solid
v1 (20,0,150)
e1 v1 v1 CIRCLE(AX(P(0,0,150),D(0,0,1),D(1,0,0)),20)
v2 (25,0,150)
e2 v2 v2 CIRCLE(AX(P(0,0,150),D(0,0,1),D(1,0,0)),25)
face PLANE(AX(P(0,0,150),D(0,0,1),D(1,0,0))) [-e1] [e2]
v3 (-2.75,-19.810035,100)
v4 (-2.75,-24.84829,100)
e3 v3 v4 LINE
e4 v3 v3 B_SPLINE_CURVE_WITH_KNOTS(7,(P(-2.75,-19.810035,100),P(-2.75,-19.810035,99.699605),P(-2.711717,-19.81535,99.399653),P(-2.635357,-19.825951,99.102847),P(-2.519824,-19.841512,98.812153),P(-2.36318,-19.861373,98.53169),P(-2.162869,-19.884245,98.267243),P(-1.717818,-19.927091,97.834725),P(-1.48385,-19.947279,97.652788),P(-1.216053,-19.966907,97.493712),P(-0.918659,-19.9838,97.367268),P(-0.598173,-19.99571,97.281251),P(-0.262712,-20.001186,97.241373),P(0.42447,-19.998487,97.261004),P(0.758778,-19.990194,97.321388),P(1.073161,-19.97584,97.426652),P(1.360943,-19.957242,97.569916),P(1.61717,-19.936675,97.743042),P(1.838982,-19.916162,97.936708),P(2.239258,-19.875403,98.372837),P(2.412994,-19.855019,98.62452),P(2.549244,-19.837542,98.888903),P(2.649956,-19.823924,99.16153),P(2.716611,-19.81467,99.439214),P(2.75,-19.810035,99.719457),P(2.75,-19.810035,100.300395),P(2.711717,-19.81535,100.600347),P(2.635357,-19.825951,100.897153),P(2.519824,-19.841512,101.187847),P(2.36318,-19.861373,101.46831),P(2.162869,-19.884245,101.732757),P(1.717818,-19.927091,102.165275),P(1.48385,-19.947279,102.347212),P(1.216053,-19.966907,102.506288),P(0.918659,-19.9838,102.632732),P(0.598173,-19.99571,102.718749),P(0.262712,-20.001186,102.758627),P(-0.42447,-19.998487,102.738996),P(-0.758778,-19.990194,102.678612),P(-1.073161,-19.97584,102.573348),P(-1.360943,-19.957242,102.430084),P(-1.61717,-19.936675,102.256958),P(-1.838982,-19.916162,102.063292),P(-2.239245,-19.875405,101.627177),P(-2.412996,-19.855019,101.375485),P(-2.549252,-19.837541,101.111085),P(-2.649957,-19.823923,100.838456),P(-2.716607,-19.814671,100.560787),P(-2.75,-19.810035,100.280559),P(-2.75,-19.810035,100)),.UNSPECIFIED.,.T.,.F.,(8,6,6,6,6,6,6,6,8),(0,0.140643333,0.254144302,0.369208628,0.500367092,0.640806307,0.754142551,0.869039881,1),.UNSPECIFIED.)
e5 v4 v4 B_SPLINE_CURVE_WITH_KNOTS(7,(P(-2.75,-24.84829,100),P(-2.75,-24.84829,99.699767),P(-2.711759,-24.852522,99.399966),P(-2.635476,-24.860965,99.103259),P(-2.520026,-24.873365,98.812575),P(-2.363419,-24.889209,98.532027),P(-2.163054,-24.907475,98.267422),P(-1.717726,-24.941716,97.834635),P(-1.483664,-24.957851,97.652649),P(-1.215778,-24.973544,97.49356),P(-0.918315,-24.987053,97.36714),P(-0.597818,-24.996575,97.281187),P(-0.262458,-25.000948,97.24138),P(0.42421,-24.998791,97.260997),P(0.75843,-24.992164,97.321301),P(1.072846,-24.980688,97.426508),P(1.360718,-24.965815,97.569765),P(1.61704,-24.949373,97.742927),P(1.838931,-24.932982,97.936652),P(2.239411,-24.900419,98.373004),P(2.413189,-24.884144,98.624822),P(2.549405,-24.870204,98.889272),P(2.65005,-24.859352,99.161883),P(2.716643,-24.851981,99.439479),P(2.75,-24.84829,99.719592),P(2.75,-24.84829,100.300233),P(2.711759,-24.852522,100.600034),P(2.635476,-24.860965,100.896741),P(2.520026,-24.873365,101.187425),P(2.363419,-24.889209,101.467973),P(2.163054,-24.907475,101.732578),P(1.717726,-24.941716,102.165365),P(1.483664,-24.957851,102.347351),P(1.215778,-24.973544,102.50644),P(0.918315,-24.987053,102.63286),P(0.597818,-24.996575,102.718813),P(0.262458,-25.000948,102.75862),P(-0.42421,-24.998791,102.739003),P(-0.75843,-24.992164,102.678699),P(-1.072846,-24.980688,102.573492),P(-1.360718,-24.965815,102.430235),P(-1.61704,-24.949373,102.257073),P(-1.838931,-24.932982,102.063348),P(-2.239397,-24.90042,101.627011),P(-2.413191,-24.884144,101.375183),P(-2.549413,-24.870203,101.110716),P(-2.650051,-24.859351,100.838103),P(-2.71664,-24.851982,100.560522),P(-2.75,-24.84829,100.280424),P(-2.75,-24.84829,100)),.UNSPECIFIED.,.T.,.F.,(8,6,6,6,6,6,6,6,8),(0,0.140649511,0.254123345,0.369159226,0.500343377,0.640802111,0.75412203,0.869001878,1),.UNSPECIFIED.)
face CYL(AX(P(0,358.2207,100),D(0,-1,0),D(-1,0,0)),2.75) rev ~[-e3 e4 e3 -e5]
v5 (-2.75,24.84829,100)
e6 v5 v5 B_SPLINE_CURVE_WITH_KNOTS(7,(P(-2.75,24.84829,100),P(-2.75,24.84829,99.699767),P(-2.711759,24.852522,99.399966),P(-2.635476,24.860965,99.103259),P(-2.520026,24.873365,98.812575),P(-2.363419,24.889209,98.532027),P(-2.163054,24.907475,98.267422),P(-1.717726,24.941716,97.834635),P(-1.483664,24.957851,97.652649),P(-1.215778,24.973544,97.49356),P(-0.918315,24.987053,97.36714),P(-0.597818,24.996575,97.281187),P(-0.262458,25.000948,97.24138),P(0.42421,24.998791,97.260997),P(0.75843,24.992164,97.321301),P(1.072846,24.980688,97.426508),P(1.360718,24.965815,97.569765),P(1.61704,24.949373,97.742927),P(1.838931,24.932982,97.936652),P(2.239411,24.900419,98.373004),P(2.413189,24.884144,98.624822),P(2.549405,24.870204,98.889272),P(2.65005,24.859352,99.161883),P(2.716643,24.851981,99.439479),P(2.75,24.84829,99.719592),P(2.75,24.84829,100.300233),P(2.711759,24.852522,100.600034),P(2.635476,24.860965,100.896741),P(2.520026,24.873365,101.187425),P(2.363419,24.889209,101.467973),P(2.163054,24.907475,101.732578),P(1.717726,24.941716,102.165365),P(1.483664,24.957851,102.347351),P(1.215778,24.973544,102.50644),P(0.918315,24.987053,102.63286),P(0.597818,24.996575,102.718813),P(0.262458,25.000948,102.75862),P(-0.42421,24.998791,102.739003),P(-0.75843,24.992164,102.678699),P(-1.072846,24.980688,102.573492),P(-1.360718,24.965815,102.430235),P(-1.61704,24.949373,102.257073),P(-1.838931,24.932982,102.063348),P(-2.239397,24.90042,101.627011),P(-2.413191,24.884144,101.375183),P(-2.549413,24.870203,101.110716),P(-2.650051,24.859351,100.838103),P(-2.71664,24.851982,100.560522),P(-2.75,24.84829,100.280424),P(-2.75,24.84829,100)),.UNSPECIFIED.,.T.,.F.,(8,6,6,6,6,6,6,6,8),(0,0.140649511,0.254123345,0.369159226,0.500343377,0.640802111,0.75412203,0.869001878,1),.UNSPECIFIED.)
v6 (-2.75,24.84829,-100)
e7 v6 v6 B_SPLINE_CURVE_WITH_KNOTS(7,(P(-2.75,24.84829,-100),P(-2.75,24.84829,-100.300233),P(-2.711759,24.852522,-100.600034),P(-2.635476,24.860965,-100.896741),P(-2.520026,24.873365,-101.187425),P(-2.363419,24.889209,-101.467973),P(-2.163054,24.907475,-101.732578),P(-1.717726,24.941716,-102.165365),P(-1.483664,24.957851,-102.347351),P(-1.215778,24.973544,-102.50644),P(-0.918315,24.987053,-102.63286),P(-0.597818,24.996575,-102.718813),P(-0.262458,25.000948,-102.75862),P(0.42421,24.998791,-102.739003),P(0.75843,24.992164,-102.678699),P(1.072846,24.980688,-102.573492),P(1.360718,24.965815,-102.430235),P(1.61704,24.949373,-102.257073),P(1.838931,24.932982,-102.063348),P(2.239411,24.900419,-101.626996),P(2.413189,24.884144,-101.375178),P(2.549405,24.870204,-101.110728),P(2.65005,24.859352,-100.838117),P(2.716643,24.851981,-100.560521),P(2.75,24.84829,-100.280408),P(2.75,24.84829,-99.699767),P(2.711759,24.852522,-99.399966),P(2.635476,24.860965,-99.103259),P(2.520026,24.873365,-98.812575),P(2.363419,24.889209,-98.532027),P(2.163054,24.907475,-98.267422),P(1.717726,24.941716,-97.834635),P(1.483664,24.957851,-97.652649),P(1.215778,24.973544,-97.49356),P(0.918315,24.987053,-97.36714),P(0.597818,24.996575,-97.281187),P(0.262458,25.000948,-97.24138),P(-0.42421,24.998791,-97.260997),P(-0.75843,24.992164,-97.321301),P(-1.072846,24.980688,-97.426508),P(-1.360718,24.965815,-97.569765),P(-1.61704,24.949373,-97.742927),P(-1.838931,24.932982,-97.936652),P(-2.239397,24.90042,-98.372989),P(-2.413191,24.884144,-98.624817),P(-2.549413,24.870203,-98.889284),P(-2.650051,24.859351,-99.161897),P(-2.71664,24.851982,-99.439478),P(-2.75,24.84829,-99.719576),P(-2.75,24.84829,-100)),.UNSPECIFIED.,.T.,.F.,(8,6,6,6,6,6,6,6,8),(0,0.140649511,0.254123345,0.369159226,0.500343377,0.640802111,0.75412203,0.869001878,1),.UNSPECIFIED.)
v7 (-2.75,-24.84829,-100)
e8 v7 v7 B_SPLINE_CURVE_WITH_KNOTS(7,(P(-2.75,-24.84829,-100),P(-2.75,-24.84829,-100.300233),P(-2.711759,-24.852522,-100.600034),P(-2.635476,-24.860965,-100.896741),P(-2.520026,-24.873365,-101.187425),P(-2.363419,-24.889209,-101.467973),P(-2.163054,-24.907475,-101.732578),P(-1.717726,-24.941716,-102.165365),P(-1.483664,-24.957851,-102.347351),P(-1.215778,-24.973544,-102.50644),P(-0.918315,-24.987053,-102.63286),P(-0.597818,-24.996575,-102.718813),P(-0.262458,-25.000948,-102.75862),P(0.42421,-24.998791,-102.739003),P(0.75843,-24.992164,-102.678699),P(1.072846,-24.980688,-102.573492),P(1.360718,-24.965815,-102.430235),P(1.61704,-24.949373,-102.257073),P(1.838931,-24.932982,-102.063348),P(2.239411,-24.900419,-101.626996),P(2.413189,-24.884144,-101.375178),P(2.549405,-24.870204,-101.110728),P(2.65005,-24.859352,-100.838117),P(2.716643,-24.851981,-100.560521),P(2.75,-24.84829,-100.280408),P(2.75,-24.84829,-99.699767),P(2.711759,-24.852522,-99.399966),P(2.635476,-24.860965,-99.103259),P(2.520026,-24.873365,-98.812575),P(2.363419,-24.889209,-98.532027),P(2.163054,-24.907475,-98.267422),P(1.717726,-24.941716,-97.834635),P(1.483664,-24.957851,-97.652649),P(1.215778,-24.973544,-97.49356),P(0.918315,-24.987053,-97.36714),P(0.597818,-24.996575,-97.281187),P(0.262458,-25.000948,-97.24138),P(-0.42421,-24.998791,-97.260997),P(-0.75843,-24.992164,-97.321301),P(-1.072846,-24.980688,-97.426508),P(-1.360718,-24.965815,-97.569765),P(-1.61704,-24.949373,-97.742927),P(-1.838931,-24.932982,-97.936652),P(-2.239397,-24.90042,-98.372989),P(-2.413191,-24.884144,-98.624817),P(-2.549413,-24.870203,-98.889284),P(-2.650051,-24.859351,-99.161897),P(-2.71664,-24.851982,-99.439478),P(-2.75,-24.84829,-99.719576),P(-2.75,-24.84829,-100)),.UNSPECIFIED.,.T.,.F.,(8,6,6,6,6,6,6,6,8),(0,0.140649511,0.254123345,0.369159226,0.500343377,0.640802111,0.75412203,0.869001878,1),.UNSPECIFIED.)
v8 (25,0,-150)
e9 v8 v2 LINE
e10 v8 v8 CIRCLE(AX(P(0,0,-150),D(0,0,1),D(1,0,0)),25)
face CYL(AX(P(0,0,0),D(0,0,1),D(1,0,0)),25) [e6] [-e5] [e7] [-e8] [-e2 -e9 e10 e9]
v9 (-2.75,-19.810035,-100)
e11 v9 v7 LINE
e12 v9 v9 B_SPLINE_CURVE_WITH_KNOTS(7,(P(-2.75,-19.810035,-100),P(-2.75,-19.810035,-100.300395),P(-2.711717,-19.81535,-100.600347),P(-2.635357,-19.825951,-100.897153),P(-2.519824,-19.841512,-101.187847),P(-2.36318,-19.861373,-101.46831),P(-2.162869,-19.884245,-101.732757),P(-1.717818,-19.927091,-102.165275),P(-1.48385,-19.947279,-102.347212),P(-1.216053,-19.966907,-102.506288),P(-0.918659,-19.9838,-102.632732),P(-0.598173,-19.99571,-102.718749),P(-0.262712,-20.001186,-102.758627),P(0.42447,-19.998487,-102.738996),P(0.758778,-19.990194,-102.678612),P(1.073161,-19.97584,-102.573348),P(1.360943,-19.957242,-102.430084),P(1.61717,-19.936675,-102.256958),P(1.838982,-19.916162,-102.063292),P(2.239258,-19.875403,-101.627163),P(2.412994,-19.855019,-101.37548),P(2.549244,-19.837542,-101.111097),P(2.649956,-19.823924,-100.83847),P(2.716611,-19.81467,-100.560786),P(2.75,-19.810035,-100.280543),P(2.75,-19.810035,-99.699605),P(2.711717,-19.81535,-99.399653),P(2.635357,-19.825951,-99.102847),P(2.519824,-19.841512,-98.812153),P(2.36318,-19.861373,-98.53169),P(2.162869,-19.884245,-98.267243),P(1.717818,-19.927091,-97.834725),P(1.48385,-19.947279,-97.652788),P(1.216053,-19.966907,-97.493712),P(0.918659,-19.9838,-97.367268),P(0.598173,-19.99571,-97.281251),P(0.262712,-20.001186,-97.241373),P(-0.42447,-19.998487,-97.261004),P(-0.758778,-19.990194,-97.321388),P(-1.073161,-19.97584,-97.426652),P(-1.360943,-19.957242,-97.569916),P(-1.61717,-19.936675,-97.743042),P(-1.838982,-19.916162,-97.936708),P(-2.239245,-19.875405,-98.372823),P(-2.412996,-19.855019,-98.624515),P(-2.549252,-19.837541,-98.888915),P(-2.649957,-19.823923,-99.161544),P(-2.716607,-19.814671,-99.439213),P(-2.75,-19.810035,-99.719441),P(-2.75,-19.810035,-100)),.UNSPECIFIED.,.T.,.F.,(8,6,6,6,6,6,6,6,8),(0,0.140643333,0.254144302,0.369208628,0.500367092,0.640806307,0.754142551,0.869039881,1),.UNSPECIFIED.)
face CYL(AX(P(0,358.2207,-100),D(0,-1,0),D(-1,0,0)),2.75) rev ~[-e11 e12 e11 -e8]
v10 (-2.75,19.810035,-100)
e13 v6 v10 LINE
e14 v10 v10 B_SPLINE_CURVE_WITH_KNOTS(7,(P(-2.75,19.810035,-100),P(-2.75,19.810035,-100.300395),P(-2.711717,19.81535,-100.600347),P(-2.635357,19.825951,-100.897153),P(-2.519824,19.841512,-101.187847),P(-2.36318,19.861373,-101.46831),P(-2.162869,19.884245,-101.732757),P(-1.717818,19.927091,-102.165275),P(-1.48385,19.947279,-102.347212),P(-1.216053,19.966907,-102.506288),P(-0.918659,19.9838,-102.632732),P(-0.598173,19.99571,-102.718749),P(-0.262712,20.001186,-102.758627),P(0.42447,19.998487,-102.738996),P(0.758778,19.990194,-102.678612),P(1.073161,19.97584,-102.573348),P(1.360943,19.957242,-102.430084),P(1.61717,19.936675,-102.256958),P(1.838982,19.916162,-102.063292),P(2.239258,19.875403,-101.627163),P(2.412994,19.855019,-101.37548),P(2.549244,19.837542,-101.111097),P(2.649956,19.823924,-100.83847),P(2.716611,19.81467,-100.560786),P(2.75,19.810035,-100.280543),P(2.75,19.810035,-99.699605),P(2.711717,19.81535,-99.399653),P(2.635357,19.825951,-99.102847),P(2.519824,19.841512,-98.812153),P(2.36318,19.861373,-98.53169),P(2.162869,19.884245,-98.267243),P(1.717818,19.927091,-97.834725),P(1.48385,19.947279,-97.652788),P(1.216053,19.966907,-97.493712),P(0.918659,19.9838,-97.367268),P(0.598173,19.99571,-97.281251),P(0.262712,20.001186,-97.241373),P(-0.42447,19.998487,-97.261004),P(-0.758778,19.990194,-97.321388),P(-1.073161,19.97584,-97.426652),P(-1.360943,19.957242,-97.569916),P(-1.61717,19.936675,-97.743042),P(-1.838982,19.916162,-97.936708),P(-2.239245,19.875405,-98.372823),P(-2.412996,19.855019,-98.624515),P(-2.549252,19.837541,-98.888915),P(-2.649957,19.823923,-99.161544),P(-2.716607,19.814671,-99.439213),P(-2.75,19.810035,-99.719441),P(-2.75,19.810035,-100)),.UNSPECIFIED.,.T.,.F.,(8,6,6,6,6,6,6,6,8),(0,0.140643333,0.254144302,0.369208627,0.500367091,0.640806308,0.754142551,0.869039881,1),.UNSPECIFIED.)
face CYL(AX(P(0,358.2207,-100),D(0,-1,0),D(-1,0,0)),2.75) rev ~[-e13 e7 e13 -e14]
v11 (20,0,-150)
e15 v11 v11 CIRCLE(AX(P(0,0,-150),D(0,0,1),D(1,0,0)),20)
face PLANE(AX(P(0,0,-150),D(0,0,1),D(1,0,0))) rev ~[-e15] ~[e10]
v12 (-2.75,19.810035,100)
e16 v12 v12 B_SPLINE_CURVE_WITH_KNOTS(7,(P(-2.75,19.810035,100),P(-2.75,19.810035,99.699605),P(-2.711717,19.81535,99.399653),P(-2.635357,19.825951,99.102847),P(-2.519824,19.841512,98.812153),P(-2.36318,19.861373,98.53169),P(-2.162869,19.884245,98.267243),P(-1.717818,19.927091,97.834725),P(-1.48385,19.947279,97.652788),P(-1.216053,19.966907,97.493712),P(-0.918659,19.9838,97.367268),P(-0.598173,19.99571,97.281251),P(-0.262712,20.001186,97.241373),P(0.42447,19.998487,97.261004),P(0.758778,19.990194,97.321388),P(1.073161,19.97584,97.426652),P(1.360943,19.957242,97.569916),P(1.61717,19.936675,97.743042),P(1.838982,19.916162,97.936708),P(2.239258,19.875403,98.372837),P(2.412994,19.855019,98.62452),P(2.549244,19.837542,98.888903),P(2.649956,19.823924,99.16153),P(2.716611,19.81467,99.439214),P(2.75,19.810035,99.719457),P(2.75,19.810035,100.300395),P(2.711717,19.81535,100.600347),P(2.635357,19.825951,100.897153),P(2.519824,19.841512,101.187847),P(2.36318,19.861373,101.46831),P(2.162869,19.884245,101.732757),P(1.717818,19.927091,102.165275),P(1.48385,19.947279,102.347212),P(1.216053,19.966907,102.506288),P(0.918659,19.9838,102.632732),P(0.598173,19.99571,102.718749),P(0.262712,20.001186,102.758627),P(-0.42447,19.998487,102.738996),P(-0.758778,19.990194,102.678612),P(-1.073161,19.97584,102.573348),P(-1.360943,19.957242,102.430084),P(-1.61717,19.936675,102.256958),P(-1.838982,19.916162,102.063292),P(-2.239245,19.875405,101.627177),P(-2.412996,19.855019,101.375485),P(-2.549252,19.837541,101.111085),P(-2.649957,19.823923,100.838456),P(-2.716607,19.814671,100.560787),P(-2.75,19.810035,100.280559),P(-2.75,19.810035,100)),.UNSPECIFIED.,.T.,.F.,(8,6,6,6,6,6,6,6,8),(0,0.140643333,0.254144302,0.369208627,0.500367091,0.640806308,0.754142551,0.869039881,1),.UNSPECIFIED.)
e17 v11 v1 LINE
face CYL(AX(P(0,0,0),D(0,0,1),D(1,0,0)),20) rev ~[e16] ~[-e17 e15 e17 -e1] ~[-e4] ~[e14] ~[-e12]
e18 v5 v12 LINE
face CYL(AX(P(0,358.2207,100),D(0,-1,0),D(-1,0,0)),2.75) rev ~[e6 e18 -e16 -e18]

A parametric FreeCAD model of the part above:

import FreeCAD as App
import Part
import Sketcher
from FreeCAD import Vector
Q = App.Units.Quantity


def faces_at(feature, points):
    """Names of the faces that lie closest to the given points."""
    faces = feature.Shape.Faces
    near = lambda p: min(range(len(faces)), key=lambda i: faces[i].distToShape(Part.Vertex(*p))[0])
    return sorted({f"Face{near(p) + 1}" for p in points})

doc = App.newDocument("Part")
body = doc.addObject("PartDesign::Body", "Body")

# Sketch on XY plane
sketch1 = body.newObject("Sketcher::SketchObject", "Sketch")
sketch1.AttachmentSupport = (doc.getObject("XY_Plane"), [""])
sketch1.MapMode = "FlatFace"
sketch1.addGeometry(Part.Circle(Vector(0, 0, 0), Vector(0, 0, 1), 25), False)
sketch1.addConstraint([
    Sketcher.Constraint("Coincident", 0, 3, -1, 1),
    Sketcher.Constraint("Diameter", 0, Q("50 mm")),
])
pad1 = body.newObject("PartDesign::Pad", "Pad")
pad1.Profile = sketch1
pad1.Length = 300
pad1.Midplane = True
doc.recompute()

thickness = body.newObject("PartDesign::Thickness", "Thickness")
thickness.Base = (pad1, faces_at(pad1, [(0, 0, 150), (0, 0, -150)]))
thickness.Value = 5
thickness.Reversed = True
thickness.Join = "Arc"

# Sketch on XZ plane
sketch2 = body.newObject("Sketcher::SketchObject", "Sketch001")
sketch2.AttachmentSupport = (doc.getObject("XZ_Plane"), [""])
sketch2.MapMode = "FlatFace"
sketch2.AttachmentOffset = App.Placement(Vector(0, 0, -50), App.Rotation())
sketch2.addGeometry([
    Part.Circle(Vector(0, -100, 0), Vector(0, 0, 1), 2.8),
    Part.Circle(Vector(0, 100, 0), Vector(0, 0, 1), 2.8),
], False)
sketch2.addConstraint([
    Sketcher.Constraint("Equal", 0, 1),
    Sketcher.Constraint("Symmetric", 0, 3, 1, 3, -1, 1),
    Sketcher.Constraint("PointOnObject", 0, 3, -2),
    Sketcher.Constraint("Diameter", 0, Q("5.5 mm")),
    Sketcher.Constraint("DistanceY", 0, 3, -1, 1, Q("100 mm")),
])
doc.recompute()
hole = body.newObject("PartDesign::Hole", "Hole")
hole.Profile = sketch2
hole.ThreadType = "None"
hole.Diameter = 5.5
hole.DepthType = "ThroughAll"
hole.Reversed = True

doc.recompute()
